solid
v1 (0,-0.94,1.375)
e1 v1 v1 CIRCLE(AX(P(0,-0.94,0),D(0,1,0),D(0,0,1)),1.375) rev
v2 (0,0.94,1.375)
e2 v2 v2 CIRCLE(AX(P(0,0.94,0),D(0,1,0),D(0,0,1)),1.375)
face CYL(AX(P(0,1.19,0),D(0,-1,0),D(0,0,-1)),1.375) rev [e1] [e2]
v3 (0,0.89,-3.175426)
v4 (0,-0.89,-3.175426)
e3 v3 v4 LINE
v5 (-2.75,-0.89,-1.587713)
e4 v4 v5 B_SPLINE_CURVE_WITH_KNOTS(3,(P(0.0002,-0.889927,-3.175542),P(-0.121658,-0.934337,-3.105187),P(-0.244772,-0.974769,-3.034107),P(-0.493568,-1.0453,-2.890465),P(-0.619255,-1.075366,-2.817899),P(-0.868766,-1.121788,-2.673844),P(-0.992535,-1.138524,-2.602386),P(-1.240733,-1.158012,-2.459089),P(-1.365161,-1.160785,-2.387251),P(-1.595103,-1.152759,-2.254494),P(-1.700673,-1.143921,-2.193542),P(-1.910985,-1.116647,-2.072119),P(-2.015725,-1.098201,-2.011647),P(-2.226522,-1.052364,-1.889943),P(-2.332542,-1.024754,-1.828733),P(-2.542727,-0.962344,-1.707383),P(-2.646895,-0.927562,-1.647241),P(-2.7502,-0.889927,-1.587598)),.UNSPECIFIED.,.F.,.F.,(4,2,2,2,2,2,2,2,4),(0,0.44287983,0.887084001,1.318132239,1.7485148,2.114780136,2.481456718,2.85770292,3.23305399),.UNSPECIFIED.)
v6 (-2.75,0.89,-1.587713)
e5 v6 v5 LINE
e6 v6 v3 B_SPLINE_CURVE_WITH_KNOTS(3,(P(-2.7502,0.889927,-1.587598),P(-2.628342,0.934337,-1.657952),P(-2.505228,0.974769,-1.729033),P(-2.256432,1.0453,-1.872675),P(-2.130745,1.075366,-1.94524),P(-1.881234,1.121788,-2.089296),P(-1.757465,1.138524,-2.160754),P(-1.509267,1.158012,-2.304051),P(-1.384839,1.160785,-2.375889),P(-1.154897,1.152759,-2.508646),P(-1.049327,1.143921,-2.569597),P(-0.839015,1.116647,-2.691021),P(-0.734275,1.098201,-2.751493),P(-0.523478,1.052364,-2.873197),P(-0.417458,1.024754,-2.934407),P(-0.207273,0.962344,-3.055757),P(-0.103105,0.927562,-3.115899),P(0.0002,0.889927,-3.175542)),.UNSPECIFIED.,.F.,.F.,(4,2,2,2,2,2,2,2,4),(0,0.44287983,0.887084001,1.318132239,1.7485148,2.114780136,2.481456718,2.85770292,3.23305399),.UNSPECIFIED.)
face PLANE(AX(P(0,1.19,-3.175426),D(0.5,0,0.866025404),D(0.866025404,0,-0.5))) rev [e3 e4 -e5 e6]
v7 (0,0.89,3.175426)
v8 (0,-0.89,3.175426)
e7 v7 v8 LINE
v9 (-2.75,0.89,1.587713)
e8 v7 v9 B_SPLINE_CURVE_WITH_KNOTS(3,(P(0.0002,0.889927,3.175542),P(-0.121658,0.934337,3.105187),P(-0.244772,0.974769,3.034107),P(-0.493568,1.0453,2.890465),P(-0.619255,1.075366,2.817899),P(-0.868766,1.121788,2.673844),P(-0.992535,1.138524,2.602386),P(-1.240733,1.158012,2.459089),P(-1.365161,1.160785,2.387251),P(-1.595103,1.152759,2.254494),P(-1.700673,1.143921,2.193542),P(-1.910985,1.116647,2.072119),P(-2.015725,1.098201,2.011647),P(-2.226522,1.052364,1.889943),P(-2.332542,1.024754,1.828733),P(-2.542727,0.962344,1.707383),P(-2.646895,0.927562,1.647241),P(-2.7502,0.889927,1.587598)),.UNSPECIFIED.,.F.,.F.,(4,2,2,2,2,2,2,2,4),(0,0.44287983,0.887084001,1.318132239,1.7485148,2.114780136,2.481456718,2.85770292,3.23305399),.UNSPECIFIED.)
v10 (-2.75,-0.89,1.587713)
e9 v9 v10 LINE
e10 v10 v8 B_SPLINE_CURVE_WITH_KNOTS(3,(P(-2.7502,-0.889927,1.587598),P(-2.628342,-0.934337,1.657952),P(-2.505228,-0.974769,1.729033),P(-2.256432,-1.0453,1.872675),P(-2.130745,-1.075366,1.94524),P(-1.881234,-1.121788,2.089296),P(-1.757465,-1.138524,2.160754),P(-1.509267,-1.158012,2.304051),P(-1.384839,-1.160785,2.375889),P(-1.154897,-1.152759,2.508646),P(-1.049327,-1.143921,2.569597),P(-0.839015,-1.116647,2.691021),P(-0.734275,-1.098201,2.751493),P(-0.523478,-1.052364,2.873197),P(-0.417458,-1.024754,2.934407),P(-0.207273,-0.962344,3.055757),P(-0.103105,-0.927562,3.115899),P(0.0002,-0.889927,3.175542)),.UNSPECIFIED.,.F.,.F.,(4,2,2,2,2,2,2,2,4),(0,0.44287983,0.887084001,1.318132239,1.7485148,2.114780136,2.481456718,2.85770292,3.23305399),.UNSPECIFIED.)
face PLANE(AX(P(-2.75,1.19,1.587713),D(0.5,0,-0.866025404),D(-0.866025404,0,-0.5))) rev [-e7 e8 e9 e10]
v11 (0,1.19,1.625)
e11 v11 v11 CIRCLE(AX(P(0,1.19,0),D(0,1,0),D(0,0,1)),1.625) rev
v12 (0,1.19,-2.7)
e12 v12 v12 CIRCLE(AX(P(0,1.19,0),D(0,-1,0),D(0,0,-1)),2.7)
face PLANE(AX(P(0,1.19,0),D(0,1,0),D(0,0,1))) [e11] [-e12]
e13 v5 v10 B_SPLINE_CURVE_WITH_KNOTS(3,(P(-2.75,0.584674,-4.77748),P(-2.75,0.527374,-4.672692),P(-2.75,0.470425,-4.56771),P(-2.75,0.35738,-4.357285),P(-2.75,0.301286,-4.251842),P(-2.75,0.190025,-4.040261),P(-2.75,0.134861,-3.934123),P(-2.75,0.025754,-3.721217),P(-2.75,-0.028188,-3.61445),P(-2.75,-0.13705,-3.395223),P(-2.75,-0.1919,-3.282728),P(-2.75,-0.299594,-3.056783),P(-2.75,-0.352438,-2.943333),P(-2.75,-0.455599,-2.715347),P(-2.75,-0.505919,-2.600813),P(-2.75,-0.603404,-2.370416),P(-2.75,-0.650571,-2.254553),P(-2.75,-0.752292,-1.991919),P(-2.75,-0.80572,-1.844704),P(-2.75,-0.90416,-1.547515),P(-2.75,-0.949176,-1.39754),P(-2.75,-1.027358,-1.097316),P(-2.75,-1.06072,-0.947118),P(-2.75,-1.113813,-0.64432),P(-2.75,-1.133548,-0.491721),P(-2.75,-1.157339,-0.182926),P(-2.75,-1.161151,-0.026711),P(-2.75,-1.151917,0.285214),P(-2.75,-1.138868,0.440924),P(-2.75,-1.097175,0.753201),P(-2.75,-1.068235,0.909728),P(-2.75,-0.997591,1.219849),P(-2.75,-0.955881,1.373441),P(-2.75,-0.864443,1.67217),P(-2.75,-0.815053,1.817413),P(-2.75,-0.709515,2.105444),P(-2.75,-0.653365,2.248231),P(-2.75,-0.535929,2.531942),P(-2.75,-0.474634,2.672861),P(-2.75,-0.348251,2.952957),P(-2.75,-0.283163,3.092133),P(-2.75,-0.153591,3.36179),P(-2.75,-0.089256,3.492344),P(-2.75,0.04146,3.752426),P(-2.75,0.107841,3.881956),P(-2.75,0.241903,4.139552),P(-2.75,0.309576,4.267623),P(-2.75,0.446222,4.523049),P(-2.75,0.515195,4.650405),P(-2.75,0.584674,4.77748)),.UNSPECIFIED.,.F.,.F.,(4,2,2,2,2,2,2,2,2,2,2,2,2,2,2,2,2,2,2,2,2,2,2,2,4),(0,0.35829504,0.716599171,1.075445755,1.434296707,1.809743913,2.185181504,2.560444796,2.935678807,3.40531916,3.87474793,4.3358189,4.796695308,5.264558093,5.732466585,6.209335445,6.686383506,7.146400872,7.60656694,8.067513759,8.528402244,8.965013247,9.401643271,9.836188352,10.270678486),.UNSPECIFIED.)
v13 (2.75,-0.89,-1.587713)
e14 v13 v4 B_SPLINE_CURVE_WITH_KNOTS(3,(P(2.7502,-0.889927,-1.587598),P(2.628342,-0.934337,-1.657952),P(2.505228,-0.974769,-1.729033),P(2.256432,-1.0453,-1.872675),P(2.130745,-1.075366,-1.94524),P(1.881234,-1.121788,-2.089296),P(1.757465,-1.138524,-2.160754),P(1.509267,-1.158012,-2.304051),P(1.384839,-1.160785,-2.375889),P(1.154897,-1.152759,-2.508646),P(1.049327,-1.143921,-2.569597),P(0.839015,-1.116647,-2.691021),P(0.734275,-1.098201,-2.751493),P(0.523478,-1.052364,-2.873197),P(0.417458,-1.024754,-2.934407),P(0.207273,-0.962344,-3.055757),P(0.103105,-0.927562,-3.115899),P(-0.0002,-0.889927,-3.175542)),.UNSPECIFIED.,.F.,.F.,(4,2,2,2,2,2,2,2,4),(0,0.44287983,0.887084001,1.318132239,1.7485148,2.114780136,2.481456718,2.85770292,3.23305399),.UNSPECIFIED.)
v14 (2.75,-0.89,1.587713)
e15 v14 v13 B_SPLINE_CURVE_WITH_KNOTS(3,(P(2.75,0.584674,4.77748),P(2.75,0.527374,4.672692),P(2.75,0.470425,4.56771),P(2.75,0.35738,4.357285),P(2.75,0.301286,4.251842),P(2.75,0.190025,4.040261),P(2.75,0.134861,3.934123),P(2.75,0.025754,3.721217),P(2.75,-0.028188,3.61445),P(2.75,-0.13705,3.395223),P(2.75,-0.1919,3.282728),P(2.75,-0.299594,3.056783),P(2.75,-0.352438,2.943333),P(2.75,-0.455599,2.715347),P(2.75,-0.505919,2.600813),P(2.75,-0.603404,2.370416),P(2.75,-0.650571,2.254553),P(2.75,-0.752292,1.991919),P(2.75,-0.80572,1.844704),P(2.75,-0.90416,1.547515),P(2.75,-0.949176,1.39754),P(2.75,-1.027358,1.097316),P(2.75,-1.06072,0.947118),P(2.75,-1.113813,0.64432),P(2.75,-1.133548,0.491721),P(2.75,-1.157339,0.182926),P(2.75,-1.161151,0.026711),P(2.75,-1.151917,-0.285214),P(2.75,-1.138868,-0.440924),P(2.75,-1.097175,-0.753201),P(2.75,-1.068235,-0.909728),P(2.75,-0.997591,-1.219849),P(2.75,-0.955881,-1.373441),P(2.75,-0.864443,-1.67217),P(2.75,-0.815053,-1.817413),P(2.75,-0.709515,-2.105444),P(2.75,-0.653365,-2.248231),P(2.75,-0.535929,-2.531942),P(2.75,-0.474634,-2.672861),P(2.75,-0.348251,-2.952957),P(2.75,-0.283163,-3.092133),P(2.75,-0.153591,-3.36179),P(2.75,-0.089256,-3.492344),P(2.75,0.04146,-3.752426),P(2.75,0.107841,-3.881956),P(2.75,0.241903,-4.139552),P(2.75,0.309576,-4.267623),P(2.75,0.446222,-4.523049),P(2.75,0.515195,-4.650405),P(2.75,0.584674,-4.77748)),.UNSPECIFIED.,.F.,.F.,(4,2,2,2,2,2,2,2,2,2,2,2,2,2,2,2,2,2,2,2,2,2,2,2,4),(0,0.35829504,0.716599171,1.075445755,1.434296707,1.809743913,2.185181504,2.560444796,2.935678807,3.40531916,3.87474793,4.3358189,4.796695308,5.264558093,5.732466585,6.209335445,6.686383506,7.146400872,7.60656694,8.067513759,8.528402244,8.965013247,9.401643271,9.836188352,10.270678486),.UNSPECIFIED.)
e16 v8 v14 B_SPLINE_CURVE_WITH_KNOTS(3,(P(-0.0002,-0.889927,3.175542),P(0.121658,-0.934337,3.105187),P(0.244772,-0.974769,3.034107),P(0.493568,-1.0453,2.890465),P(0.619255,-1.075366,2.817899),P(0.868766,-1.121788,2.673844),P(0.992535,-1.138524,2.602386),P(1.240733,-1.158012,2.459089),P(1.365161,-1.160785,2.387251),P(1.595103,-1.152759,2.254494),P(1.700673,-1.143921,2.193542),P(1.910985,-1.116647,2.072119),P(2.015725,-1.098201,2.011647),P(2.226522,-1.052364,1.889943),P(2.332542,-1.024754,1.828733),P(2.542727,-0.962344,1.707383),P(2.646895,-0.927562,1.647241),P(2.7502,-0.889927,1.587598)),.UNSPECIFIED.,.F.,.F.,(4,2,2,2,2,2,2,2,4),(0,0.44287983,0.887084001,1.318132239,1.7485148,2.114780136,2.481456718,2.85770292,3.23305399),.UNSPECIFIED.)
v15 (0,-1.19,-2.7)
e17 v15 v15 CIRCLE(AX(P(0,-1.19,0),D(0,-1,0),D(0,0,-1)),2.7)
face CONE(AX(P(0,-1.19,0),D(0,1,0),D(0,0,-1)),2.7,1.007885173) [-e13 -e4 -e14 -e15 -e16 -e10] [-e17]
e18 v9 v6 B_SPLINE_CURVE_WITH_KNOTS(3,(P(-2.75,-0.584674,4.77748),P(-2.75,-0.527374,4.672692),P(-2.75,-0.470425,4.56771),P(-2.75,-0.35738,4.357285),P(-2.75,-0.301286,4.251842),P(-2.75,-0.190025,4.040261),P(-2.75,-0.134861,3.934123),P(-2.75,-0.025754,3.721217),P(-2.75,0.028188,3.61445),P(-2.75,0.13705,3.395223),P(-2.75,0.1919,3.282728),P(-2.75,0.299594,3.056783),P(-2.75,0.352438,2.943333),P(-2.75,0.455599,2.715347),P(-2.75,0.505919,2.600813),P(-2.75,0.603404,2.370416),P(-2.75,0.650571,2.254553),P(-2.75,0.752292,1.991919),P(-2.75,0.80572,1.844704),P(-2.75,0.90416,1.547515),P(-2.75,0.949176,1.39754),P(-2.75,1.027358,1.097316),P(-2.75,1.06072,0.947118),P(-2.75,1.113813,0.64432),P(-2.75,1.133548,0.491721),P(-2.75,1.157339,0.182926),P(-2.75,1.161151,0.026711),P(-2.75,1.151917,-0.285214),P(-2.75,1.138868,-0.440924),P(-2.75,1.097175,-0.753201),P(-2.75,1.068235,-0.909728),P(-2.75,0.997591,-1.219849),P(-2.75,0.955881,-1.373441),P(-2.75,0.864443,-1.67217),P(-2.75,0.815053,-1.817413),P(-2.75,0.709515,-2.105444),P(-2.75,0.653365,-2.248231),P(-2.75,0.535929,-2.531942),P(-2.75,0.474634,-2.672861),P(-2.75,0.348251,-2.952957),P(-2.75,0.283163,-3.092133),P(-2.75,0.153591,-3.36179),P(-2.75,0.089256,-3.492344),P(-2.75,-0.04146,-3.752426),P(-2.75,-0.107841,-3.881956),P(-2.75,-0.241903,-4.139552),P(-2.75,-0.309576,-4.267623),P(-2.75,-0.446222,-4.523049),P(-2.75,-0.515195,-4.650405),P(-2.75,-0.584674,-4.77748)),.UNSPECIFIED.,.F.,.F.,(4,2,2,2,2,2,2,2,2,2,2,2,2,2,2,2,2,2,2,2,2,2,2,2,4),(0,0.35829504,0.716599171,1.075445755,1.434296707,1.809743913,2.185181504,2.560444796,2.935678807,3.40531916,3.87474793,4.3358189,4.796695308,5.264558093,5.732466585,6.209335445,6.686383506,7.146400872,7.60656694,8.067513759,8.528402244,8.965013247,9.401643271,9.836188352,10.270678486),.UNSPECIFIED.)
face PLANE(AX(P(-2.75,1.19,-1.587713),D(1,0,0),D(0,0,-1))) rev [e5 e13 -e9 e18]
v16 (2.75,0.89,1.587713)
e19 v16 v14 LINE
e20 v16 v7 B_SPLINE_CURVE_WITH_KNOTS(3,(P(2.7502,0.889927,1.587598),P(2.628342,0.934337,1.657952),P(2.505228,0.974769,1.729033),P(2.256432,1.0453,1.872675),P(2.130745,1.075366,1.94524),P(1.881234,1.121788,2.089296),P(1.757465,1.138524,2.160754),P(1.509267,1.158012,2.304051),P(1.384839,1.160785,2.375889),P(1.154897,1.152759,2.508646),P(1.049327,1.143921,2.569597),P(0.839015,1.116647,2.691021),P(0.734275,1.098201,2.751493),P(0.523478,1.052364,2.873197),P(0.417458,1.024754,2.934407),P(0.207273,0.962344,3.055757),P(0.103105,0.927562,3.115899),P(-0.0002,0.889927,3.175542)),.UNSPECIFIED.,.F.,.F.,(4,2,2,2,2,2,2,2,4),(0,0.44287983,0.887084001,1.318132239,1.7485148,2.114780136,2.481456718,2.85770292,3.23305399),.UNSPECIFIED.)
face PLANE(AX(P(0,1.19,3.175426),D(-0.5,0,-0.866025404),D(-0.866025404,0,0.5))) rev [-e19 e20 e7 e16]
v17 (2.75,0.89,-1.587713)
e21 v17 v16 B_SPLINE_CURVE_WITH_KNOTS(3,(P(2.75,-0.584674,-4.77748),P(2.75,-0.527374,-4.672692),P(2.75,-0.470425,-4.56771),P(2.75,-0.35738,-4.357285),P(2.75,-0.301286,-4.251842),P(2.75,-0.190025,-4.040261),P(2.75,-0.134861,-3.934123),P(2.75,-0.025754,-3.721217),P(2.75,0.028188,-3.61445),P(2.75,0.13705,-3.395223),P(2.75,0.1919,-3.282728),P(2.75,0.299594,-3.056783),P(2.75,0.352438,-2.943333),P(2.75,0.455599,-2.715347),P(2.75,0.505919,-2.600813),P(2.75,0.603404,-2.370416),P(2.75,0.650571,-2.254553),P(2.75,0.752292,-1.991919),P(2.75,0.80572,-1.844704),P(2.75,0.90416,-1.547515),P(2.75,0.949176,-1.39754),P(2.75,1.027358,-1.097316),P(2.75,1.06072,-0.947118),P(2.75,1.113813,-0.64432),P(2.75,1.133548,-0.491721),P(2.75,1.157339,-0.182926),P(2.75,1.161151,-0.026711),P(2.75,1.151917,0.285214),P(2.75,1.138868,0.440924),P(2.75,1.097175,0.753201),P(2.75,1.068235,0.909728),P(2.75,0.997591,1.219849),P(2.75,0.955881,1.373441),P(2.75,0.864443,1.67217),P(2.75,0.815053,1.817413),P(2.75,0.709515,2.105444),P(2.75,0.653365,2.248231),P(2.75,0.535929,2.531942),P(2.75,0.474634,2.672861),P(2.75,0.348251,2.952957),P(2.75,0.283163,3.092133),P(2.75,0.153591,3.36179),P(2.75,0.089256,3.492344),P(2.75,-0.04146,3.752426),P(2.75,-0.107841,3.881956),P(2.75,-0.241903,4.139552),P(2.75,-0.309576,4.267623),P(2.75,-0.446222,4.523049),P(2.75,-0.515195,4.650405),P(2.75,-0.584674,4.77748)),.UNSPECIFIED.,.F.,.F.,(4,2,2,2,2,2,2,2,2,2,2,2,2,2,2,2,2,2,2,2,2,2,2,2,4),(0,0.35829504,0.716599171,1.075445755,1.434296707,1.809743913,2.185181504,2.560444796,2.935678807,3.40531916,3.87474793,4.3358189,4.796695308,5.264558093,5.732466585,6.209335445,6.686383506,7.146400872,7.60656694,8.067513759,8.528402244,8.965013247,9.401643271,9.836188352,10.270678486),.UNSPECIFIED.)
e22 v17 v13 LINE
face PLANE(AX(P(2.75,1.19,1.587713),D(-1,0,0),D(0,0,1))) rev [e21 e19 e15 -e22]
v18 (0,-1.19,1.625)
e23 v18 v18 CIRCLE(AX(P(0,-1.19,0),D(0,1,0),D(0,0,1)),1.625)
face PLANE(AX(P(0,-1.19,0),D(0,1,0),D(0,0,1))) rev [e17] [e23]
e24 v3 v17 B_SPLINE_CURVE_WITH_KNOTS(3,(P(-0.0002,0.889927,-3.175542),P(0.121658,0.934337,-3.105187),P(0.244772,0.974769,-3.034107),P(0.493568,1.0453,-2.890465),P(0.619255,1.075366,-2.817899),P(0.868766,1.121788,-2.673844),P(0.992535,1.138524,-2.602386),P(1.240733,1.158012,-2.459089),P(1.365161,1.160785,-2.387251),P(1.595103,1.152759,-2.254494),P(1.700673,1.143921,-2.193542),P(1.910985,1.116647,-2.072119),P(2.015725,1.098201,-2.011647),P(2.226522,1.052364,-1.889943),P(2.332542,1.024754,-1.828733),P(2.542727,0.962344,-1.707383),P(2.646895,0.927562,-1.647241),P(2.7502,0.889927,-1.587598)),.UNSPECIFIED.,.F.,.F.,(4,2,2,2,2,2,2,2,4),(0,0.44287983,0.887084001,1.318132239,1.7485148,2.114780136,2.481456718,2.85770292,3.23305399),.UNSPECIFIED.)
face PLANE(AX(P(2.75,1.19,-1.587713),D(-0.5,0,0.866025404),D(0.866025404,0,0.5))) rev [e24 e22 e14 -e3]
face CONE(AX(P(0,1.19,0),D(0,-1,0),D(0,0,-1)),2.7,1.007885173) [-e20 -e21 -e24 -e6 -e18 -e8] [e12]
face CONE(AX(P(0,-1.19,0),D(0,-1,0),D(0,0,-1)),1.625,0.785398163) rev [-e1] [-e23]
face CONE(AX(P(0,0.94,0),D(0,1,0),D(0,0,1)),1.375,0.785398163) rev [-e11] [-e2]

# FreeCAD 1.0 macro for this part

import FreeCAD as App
import Part
import Sketcher

V = App.Vector
Q = App.Units.Quantity


def edges_at(feature, points):
    """Names of the edges that pass closest to the given points."""
    edges = feature.Shape.Edges
    near = lambda p: min(range(len(edges)), key=lambda i: edges[i].distToShape(Part.Vertex(*p))[0])
    return sorted({f"Edge{near(p) + 1}" for p in points})


def add_polygon(sketch, points):
    """Adds a closed chain of lines whose ends are joined by coincident constraints."""
    first, n = sketch.GeometryCount, len(points)
    for a, b in zip(points, points[1:] + points[:1]):
        sketch.addGeometry(Part.LineSegment(App.Vector(*a, 0), App.Vector(*b, 0)), False)
    for i in range(n):
        sketch.addConstraint(Sketcher.Constraint("Coincident", first + i, 2, first + (i + 1) % n, 1))

doc = App.newDocument("Part")
body = doc.addObject("PartDesign::Body", "Body")

sketch1 = doc.addObject("Sketcher::SketchObject", "Sketch")
body.addObject(sketch1)
sketch1.AttachmentSupport = (doc.XZ_Plane, [""])
sketch1.MapMode = "FlatFace"
add_polygon(sketch1, [(0, -3.175426), (-2.75, -1.587713), (-2.75, 1.587713), (0, 3.175426), (2.75, 1.587713), (2.75, -1.587713)])
sketch1.addGeometry(Part.Circle(V(0, 0, 0), V(0, 0, 1), 1.375), False)
sketch1.addConstraint(Sketcher.Constraint("Vertical", 1))
sketch1.addConstraint(Sketcher.Constraint("Vertical", 4))
sketch1.addConstraint(Sketcher.Constraint("Coincident", 6, 3, -1, 1))
sketch1.addConstraint(Sketcher.Constraint("Symmetric", 0, 2, 3, 2, -1, 1))
sketch1.addConstraint(Sketcher.Constraint("Symmetric", 2, 2, 5, 2, -1, 1))
sketch1.addConstraint(Sketcher.Constraint("PointOnObject", 2, 2, -2))
sketch1.addConstraint(Sketcher.Constraint("Parallel", 2, 5))
sketch1.addConstraint(Sketcher.Constraint("Horizontal", 1, 2, 3, 2))
sketch1.addConstraint(Sketcher.Constraint("Diameter", 6, Q("2.75 mm")))
sketch1.addConstraint(Sketcher.Constraint("Angle", 0, Q("150 deg")))
sketch1.addConstraint(Sketcher.Constraint("DistanceX", 1, 2, 3, 2, Q("5.5 mm")))
sketch1.addConstraint(Sketcher.Constraint("DistanceY", 1, 1, 1, 2, Q("3.175426 mm")))
pad1 = doc.addObject("PartDesign::Pad", "Pad")
body.addObject(pad1)
pad1.Profile = sketch1
pad1.Length = 2.38
pad1.Midplane = True

sketch2 = doc.addObject("Sketcher::SketchObject", "Sketch001")
body.addObject(sketch2)
sketch2.AttachmentSupport = (doc.YZ_Plane, [""])
sketch2.MapMode = "FlatFace"
add_polygon(sketch2, [(1.19, -2.7), (0.89, -3.175426), (1.19, -3.175426)])
sketch2.addConstraint(Sketcher.Constraint("Horizontal", 1))
sketch2.addConstraint(Sketcher.Constraint("Vertical", 2))
sketch2.addConstraint(Sketcher.Constraint("DistanceX", 1, 1, 1, 2, Q("0.3 mm")))
sketch2.addConstraint(Sketcher.Constraint("DistanceY", 2, 2, -1, 1, Q("2.7 mm")))
sketch2.addConstraint(Sketcher.Constraint("DistanceX", -1, 1, 0, 2, Q("0.89 mm")))
sketch2.addConstraint(Sketcher.Constraint("DistanceY", 2, 1, 2, 2, Q("0.475426 mm")))
groove = doc.addObject("PartDesign::Groove", "Groove")
body.addObject(groove)
groove.Profile = sketch2
groove.ReferenceAxis = (sketch2, ["H_Axis"])
groove.Angle = 360
doc.recompute()

mirrored = doc.addObject("PartDesign::Mirrored", "Mirrored")
body.addObject(mirrored)
mirrored.Originals = [groove]
mirrored.MirrorPlane = (doc.XZ_Plane, [""])
body.Tip = mirrored
doc.recompute()

chamfer = doc.addObject("PartDesign::Chamfer", "Chamfer")
body.addObject(chamfer)
chamfer.Base = (mirrored, edges_at(mirrored, [(0, -1.19, -1.375), (0, 1.19, -1.375)]))
chamfer.Size = 0.25

doc.recompute()
